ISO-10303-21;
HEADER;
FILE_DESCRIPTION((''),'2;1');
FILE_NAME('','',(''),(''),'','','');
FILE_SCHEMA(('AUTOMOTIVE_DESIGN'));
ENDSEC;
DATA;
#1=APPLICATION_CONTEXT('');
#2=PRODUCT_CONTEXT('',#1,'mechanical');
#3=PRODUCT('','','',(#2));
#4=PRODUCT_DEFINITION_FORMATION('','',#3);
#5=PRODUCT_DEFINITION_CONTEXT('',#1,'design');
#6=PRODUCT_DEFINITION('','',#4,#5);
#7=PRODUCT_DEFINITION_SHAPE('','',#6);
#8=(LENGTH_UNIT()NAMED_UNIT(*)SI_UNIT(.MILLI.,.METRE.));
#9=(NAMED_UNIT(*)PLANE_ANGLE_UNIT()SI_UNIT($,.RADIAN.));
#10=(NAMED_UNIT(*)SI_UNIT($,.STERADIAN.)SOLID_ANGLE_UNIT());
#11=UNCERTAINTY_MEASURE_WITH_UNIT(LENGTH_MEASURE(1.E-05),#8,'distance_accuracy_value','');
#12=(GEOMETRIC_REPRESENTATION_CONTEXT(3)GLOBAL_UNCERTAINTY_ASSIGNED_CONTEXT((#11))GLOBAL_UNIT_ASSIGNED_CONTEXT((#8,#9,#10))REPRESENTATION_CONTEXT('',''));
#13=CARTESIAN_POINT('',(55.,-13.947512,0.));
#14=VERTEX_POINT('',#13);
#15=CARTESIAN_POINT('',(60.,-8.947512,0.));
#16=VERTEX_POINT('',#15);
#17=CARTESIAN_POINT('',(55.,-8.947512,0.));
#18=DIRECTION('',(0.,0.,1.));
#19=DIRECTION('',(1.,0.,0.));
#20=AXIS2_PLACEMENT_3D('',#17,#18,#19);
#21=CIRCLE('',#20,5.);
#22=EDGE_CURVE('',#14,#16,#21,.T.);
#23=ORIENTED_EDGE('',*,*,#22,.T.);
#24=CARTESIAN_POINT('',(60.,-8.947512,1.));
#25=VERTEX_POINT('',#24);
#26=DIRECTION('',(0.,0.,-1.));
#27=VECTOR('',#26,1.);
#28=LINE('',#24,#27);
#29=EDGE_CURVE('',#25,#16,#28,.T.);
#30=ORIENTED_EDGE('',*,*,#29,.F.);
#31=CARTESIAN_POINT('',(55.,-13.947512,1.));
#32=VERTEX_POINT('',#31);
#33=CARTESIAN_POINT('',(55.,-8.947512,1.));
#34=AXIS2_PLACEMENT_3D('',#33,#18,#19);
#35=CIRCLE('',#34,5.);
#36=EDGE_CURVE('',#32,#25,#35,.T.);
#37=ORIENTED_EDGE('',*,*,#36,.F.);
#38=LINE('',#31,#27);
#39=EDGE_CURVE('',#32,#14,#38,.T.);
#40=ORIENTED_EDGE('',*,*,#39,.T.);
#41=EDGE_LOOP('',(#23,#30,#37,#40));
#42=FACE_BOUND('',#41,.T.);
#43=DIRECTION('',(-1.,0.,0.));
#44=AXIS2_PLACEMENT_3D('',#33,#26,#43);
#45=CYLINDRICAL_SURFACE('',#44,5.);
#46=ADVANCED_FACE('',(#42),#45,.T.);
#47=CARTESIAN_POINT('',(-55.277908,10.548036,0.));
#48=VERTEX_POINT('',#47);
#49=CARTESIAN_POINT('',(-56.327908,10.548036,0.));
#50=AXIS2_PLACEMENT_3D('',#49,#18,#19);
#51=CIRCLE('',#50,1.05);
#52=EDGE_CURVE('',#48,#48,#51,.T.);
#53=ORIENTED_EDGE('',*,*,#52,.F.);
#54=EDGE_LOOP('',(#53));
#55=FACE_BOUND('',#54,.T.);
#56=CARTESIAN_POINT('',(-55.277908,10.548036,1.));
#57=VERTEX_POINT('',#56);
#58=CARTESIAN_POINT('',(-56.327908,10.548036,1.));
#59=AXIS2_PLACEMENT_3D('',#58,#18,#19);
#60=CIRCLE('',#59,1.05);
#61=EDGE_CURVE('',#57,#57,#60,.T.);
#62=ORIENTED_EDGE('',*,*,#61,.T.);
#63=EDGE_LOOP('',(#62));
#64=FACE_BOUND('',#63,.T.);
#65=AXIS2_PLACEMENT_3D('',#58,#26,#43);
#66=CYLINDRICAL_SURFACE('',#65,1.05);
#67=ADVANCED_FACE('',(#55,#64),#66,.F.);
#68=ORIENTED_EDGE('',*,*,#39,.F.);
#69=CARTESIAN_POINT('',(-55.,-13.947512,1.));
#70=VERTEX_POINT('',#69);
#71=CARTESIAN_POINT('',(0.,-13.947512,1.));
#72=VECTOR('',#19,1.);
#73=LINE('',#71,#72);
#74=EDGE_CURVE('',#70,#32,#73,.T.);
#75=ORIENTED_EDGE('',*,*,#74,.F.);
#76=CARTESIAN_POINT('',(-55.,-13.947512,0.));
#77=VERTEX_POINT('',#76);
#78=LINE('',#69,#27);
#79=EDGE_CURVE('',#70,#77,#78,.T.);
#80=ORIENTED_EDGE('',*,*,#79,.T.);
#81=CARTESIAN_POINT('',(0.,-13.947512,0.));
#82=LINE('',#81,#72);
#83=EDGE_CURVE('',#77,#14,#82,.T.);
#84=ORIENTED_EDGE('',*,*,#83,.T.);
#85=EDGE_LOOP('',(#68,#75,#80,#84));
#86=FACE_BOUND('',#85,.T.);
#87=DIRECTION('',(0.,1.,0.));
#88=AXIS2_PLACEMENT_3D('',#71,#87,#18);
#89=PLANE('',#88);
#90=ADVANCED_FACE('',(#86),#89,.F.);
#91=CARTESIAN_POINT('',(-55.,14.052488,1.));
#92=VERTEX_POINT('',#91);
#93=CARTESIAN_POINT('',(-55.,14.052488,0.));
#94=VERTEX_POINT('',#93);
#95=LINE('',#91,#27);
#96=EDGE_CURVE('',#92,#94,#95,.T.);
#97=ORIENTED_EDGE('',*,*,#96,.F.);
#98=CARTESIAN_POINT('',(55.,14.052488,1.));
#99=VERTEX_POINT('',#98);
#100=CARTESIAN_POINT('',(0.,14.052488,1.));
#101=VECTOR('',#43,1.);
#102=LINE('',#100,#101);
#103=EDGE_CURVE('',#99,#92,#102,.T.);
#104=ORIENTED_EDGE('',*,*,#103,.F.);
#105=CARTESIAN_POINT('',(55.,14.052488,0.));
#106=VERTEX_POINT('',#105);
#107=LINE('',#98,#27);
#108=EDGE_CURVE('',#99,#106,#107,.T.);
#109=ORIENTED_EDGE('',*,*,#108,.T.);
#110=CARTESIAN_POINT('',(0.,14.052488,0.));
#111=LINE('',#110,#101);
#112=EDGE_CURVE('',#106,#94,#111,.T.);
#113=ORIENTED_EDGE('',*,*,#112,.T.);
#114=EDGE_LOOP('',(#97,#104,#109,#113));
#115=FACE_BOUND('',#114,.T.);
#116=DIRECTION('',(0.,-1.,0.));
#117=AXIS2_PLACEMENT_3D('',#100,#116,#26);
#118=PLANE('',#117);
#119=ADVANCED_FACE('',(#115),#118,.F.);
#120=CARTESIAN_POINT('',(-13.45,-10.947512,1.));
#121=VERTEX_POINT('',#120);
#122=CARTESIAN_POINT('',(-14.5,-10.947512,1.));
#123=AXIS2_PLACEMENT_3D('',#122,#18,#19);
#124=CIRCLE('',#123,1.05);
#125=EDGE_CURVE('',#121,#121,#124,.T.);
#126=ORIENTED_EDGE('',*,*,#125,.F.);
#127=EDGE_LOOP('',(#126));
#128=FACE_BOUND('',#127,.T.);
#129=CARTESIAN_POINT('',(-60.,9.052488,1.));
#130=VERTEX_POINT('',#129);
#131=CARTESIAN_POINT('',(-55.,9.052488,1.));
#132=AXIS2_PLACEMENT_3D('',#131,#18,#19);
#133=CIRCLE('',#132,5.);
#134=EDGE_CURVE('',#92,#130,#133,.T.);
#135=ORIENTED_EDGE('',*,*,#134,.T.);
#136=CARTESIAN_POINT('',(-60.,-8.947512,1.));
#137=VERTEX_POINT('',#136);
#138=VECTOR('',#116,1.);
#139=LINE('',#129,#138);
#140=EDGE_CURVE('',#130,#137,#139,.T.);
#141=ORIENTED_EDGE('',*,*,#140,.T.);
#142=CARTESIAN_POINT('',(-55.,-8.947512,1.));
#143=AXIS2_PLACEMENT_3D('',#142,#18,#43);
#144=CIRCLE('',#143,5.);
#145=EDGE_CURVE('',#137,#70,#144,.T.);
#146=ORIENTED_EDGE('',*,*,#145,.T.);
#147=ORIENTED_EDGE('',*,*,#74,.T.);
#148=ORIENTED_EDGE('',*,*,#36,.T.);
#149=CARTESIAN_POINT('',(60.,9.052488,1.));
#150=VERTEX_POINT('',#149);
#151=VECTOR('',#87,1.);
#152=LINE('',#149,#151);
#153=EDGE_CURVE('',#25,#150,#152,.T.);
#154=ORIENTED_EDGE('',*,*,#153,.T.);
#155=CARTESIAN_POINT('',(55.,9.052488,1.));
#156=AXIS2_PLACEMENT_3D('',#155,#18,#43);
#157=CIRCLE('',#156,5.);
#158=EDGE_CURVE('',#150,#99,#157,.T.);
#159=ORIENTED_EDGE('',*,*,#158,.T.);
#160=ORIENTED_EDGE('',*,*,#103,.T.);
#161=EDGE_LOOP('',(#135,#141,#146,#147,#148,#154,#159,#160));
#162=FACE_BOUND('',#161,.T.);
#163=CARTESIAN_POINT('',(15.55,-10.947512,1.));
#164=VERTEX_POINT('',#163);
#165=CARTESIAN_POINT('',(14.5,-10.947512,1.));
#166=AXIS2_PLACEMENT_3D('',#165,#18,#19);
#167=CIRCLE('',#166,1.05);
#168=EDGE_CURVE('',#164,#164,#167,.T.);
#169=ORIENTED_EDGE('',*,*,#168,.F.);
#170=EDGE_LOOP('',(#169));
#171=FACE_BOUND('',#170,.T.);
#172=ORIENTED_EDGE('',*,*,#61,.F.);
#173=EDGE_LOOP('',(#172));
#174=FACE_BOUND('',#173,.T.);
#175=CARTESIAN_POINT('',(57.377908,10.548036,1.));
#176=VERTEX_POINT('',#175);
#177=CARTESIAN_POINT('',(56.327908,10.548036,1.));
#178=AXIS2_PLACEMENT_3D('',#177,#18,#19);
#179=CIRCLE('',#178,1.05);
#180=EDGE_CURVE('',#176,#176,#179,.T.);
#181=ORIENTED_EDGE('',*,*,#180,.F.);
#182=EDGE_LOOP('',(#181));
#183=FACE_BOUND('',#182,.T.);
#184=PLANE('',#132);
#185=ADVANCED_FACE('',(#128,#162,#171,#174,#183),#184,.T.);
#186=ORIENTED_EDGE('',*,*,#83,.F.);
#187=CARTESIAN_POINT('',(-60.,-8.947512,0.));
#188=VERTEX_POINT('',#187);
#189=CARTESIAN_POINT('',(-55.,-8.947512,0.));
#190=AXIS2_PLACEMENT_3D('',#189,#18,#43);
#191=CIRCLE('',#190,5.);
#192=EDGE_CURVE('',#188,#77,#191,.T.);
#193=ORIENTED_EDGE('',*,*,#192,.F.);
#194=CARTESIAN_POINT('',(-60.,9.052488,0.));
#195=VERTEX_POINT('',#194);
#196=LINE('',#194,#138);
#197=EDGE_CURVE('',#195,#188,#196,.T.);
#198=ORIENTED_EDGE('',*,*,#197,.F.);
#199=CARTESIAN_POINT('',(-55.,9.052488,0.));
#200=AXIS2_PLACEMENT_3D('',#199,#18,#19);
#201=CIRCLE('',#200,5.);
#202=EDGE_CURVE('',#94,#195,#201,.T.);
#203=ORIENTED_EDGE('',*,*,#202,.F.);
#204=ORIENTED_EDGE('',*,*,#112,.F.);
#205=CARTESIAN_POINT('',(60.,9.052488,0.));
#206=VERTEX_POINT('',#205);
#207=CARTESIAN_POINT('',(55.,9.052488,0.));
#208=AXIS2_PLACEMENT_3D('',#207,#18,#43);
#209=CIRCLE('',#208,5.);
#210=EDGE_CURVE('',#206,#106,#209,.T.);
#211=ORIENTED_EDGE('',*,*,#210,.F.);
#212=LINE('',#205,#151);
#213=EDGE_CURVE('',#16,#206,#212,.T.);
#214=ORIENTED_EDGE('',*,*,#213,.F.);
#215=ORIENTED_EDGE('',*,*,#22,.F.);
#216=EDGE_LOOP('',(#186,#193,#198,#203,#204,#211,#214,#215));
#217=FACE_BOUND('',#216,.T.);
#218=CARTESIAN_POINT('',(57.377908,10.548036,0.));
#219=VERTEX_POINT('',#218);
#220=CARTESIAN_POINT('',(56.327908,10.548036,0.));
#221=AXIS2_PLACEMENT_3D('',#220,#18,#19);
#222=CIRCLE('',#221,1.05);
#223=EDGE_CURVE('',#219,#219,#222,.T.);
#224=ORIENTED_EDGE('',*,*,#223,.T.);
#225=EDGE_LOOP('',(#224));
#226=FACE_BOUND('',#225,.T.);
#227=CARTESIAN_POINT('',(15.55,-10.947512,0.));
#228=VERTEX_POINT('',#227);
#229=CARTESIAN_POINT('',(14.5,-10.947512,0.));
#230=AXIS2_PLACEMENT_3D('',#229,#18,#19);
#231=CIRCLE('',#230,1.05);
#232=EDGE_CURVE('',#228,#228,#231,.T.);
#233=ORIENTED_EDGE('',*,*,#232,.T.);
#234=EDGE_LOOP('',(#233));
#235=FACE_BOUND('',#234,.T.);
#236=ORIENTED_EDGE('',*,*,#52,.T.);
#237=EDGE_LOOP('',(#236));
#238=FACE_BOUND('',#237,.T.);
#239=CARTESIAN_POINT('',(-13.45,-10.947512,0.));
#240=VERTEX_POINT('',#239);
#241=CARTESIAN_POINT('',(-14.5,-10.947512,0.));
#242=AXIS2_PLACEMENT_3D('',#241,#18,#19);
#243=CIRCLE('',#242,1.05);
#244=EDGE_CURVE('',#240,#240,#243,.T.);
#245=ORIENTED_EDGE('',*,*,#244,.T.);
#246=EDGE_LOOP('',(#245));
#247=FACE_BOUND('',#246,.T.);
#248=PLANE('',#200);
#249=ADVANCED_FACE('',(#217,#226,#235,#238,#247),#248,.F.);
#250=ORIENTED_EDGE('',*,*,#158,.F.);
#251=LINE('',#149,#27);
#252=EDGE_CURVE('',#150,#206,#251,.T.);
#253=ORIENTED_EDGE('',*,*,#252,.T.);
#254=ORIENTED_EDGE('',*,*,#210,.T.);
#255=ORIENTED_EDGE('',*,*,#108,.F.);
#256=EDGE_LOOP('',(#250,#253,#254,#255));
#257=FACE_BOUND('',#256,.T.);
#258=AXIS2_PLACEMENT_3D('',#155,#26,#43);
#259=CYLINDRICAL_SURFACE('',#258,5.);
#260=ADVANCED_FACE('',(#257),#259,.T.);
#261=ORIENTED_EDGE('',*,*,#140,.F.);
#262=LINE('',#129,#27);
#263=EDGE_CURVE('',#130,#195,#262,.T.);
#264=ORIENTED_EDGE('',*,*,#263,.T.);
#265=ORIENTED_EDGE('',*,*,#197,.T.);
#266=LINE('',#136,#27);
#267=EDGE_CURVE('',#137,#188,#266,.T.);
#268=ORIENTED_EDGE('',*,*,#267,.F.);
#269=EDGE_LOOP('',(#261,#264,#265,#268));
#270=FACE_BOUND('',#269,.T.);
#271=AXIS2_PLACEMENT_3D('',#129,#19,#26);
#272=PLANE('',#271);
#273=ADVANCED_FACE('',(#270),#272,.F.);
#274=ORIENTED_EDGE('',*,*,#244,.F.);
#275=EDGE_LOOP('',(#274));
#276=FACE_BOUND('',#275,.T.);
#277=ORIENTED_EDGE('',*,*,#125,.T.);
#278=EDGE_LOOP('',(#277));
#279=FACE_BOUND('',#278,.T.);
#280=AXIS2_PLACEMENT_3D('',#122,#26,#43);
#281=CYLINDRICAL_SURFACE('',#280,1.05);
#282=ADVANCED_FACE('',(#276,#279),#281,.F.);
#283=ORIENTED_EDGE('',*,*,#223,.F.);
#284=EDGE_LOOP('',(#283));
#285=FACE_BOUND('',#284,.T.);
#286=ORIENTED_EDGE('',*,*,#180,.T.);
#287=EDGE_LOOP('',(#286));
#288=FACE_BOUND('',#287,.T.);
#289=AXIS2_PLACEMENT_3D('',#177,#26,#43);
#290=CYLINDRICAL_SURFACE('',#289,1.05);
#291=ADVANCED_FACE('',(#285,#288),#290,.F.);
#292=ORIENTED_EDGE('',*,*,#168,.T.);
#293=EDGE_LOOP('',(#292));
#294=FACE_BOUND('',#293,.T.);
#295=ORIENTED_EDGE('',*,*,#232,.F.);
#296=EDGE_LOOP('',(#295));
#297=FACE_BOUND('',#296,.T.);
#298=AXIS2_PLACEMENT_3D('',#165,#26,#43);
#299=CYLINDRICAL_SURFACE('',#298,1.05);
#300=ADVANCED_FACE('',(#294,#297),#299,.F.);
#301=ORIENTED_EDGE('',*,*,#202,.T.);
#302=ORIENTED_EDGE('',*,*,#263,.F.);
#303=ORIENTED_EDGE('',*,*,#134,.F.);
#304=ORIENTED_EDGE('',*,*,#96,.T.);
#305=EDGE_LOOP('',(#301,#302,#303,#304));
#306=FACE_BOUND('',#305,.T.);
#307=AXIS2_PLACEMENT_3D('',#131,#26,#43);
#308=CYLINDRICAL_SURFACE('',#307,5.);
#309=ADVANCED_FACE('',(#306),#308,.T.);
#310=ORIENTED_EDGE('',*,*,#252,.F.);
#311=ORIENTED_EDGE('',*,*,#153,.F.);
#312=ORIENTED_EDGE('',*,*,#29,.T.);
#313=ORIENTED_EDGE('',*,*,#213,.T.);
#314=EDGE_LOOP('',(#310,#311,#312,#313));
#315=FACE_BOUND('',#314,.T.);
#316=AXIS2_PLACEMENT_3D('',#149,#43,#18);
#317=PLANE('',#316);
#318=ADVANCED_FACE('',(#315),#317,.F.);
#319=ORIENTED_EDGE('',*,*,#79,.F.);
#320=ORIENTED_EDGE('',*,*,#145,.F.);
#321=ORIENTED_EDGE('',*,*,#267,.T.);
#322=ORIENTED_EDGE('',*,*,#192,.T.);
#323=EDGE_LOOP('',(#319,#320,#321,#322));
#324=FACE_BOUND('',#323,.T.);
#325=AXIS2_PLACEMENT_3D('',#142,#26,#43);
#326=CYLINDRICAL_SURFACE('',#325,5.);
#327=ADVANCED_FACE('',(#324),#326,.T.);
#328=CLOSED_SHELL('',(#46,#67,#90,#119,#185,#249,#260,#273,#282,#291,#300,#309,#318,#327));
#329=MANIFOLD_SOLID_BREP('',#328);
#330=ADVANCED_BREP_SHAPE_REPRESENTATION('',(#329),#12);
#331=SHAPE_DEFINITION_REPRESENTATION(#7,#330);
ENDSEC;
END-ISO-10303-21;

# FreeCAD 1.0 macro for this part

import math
import FreeCAD as App
import Part
import Sketcher

V = App.Vector

doc = App.newDocument("Part")
body = doc.addObject("PartDesign::Body", "Body")

# Sketch on XY plane
sketch1 = body.newObject("Sketcher::SketchObject", "Sketch")
sketch1.AttachmentSupport = (doc.getObject("XY_Plane"), [""])
sketch1.MapMode = "FlatFace"
sketch1.addGeometry([
    Part.ArcOfCircle(Part.Circle(V(55, 9.1, 0), V(0, 0, 1), 5), math.radians(0), math.radians(90)),  # 0
    Part.LineSegment(V(55, 14.1, 0), V(-55, 14.1, 0)),  # 1
    Part.ArcOfCircle(Part.Circle(V(-55, 9.1, 0), V(0, 0, 1), 5), math.radians(90), math.radians(180)),  # 2
    Part.LineSegment(V(-60, 9.1, 0), V(-60, -8.9, 0)),  # 3
    Part.ArcOfCircle(Part.Circle(V(-55, -8.9, 0), V(0, 0, 1), 5), math.radians(180), math.radians(270)),  # 4
    Part.LineSegment(V(-55, -13.9, 0), V(55, -13.9, 0)),  # 5
    Part.ArcOfCircle(Part.Circle(V(55, -8.9, 0), V(0, 0, 1), 5), math.radians(-90), math.radians(0)),  # 6
    Part.LineSegment(V(60, -8.9, 0), V(60, 9.1, 0)),  # 7
    Part.Circle(V(14.5, -10.9, 0), V(0, 0, 1), 1.1),  # 8
    Part.Circle(V(-14.5, -10.9, 0), V(0, 0, 1), 1.1),  # 9
    Part.Circle(V(56.3, 10.5, 0), V(0, 0, 1), 1.1),  # 10
    Part.Circle(V(-56.3, 10.5, 0), V(0, 0, 1), 1.1),  # 11
], False)
sketch1.addConstraint([
    Sketcher.Constraint("Tangent", 0, 2, 1, 1),
    Sketcher.Constraint("Tangent", 1, 2, 2, 1),
    Sketcher.Constraint("Tangent", 2, 2, 3, 1),
    Sketcher.Constraint("Tangent", 3, 2, 4, 1),
    Sketcher.Constraint("Tangent", 4, 2, 5, 1),
    Sketcher.Constraint("Tangent", 5, 2, 6, 1),
    Sketcher.Constraint("Tangent", 6, 2, 7, 1),
    Sketcher.Constraint("Tangent", 7, 2, 0, 1),
    Sketcher.Constraint("Horizontal", 1),
    Sketcher.Constraint("Vertical", 3),
    Sketcher.Constraint("Horizontal", 5),
    Sketcher.Constraint("Vertical", 7),
    Sketcher.Constraint("Equal", 0, 2),
    Sketcher.Constraint("Equal", 2, 4),
    Sketcher.Constraint("Equal", 4, 6),
    Sketcher.Constraint("Equal", 8, 9),
    Sketcher.Constraint("Equal", 9, 10),
    Sketcher.Constraint("Equal", 10, 11),
    Sketcher.Constraint("Symmetric", 8, 3, 9, 3, -2),
    Sketcher.Constraint("Symmetric", 10, 3, 11, 3, -2),
    Sketcher.Constraint("Radius", 0, 5.0),
    Sketcher.Constraint("Diameter", 8, 2.1),
    Sketcher.Constraint("DistanceX", 1, 2, 1, 1, 110.0),
    Sketcher.Constraint("DistanceY", 3, 2, 3, 1, 18.0),
    Sketcher.Constraint("DistanceX", -1, 1, 0, 3, 55.0),
    Sketcher.Constraint("DistanceY", 8, 3, 6, 3, 2.0),
    Sketcher.Constraint("DistanceX", 9, 3, 8, 3, 29.0),
    Sketcher.Constraint("DistanceY", -1, 1, 0, 3, 9.052488),
    Sketcher.Constraint("DistanceX", -1, 1, 10, 3, 56.327908),
    Sketcher.Constraint("DistanceY", -1, 1, 10, 3, 10.548036),
])
pad1 = body.newObject("PartDesign::Pad", "Pad")
pad1.Profile = sketch1
pad1.Length = 1

doc.recompute()
